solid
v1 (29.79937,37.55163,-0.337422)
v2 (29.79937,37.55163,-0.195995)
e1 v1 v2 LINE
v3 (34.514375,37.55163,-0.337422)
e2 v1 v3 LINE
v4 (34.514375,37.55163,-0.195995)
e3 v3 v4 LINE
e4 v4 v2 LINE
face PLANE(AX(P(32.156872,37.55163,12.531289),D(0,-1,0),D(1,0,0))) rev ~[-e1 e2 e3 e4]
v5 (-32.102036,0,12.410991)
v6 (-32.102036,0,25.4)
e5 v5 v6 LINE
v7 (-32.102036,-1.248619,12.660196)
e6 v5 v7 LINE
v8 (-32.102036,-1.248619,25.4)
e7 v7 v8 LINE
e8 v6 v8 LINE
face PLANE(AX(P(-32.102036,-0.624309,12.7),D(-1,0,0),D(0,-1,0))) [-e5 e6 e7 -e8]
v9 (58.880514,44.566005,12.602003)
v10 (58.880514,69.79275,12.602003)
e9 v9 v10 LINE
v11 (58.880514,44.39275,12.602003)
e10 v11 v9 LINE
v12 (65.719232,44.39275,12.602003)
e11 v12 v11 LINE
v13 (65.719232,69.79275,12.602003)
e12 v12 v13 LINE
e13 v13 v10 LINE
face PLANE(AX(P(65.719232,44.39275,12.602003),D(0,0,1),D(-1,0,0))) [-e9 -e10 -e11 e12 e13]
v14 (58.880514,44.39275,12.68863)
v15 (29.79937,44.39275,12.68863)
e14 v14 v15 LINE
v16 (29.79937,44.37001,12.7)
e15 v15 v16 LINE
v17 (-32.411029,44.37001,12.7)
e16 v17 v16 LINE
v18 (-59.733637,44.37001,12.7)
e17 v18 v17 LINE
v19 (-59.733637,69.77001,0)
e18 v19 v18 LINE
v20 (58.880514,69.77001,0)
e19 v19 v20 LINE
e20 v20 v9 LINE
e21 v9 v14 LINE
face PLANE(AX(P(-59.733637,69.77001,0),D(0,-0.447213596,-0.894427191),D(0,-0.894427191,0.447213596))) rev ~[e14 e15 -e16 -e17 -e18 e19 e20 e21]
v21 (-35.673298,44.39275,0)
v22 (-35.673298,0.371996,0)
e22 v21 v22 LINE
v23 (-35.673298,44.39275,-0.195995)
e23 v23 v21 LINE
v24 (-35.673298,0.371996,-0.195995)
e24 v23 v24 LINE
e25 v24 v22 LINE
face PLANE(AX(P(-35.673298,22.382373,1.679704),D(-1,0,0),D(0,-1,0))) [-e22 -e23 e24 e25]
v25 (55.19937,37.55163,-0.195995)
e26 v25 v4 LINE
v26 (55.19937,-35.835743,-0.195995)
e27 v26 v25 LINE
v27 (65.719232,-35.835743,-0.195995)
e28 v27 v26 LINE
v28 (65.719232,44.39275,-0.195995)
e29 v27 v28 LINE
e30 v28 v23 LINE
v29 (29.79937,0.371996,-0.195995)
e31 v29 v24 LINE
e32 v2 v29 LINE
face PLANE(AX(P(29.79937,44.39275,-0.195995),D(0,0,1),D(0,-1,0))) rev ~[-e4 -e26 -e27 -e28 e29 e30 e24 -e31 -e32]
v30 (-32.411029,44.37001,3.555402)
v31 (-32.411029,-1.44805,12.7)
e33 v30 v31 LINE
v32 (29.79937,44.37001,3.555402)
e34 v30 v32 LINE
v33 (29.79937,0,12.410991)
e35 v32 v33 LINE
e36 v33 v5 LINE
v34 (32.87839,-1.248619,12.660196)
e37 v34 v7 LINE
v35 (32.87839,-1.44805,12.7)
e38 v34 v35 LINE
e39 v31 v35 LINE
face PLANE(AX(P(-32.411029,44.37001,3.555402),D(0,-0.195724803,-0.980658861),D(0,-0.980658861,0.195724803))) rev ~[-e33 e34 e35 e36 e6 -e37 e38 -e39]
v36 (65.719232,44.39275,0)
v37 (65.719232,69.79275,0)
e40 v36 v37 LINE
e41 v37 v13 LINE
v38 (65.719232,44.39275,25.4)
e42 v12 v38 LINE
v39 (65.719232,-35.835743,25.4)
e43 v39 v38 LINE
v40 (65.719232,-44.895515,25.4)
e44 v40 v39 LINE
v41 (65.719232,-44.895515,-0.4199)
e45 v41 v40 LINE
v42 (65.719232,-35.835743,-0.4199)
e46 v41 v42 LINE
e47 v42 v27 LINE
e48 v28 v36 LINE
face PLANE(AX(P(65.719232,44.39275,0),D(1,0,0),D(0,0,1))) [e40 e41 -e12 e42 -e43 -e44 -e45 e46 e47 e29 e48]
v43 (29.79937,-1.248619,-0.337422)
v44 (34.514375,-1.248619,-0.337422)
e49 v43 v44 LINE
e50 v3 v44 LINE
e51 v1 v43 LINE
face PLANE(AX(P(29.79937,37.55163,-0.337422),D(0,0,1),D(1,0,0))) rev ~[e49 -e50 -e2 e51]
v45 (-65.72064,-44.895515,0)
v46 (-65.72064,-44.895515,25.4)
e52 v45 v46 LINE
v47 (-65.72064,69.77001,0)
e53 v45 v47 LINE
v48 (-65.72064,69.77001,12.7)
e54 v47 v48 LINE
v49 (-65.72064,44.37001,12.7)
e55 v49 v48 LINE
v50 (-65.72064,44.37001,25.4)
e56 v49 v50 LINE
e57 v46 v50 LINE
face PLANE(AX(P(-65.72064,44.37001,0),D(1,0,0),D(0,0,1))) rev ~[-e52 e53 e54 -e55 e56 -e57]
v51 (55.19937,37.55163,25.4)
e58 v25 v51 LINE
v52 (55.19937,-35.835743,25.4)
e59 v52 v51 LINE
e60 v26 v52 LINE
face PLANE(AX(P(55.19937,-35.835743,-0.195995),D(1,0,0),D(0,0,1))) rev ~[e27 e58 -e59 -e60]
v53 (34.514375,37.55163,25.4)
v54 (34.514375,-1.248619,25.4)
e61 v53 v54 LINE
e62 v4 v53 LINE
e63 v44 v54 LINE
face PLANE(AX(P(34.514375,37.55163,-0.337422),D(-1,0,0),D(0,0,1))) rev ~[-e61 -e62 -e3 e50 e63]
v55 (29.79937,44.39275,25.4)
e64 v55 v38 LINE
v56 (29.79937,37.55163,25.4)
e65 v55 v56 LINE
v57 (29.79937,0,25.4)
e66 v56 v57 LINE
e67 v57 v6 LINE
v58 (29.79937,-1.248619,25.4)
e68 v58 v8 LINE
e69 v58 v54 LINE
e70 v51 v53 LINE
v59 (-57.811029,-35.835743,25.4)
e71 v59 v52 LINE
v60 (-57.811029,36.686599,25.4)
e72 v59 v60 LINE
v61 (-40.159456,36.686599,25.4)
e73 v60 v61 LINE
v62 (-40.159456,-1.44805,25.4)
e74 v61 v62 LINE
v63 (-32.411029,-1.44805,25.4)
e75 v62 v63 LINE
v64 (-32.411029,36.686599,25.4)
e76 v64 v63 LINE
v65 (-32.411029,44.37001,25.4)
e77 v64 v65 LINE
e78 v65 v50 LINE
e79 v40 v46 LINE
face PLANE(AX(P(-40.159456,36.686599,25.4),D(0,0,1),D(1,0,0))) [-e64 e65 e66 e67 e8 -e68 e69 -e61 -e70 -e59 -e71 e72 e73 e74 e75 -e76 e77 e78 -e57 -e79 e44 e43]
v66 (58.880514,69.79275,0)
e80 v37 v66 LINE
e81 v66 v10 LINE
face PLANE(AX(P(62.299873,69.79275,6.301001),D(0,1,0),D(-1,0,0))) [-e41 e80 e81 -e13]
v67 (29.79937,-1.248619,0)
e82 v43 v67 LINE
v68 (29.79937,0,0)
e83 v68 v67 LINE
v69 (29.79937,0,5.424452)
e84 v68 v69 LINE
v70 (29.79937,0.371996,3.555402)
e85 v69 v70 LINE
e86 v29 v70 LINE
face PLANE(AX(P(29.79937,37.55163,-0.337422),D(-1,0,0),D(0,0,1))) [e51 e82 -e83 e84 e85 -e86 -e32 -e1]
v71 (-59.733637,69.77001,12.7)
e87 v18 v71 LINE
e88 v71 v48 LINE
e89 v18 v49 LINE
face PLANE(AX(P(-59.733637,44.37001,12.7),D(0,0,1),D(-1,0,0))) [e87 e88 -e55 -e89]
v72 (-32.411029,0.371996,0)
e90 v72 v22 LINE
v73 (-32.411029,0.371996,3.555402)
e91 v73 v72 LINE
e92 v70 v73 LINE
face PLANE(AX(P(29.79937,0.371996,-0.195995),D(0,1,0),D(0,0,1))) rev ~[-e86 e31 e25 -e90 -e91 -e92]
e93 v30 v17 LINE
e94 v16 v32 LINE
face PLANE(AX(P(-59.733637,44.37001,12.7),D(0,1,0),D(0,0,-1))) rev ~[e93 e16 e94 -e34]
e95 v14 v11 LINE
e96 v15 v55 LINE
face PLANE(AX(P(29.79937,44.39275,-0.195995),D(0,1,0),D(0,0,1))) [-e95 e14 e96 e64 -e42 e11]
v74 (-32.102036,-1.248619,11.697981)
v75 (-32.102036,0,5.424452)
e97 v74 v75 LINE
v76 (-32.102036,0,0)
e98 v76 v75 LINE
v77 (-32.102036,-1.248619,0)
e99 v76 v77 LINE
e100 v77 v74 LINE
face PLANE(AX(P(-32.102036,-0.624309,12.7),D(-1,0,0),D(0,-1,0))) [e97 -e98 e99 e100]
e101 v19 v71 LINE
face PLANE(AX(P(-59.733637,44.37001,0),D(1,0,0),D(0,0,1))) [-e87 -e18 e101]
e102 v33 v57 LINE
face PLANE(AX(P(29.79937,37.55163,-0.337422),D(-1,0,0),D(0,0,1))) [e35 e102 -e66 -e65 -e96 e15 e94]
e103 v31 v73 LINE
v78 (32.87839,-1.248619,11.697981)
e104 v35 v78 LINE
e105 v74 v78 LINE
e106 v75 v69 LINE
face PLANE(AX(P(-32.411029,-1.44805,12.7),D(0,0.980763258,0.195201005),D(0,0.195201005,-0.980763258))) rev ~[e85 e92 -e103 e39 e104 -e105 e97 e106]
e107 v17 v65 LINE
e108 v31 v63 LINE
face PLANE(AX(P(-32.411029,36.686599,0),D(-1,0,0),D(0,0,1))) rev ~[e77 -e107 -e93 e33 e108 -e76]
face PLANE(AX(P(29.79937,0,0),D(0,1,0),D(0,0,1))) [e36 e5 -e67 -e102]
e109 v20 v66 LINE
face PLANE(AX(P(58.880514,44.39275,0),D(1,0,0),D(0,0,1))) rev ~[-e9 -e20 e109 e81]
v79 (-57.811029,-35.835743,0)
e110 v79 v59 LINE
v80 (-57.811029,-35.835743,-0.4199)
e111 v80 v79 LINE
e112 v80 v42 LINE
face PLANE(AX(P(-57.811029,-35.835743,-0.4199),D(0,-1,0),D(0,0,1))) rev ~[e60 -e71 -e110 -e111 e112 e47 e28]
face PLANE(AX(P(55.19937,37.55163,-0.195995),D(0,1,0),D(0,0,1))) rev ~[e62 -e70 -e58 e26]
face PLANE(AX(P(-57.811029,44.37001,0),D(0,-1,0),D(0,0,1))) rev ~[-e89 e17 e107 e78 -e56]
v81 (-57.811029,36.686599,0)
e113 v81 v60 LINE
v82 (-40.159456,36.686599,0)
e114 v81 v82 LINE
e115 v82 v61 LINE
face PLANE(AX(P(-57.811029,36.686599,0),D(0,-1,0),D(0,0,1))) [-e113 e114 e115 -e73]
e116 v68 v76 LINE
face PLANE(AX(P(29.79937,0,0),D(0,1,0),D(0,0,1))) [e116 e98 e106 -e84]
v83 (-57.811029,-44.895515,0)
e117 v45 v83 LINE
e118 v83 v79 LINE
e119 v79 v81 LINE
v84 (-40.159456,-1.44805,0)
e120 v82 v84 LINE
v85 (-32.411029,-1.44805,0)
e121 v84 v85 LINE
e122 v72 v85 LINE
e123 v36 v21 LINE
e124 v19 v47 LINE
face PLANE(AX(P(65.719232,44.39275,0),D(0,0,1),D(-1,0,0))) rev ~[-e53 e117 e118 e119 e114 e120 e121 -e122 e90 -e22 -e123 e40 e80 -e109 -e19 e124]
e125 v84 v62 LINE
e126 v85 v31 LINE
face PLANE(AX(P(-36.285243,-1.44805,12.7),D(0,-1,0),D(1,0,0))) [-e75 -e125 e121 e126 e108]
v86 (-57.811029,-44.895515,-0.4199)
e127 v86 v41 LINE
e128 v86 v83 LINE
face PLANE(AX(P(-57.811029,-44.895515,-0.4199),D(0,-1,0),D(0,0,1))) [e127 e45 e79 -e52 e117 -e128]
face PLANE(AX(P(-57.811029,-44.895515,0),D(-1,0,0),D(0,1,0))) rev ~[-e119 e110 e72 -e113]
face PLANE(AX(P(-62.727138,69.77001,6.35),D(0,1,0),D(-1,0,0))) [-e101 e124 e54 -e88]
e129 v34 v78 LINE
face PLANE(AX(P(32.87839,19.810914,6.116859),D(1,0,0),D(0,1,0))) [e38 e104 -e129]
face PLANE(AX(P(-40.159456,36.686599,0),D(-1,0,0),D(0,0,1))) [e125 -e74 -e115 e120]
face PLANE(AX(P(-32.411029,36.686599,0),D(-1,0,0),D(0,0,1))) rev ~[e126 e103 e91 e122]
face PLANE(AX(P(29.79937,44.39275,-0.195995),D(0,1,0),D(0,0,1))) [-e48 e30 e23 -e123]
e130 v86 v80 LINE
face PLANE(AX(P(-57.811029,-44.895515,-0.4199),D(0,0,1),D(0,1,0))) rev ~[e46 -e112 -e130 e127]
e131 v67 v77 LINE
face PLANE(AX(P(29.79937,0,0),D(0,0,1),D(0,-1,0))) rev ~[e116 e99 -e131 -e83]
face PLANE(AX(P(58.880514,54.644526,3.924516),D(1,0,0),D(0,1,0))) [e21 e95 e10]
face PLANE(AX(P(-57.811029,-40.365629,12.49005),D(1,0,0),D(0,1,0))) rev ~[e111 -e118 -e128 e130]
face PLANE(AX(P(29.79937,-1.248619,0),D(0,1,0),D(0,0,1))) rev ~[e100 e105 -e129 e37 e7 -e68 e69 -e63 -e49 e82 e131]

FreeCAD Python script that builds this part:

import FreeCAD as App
import Part
import Sketcher
from FreeCAD import Vector
Q = App.Units.Quantity


def add_polygon(sketch, points):
    """Adds a closed chain of lines whose ends are joined by coincident constraints."""
    first, n = sketch.GeometryCount, len(points)
    for a, b in zip(points, points[1:] + points[:1]):
        sketch.addGeometry(Part.LineSegment(App.Vector(*a, 0), App.Vector(*b, 0)), False)
    for i in range(n):
        sketch.addConstraint(Sketcher.Constraint("Coincident", first + i, 2, first + (i + 1) % n, 1))

doc = App.newDocument("Part")
body = doc.addObject("PartDesign::Body", "Body")

# Sketch on XY plane
sketch1 = body.newObject("Sketcher::SketchObject", "Sketch")
sketch1.AttachmentSupport = (doc.getObject("XY_Plane"), [""])
sketch1.MapMode = "FlatFace"
add_polygon(sketch1, [(-66, 44), (-66, -45), (-58, -45), (-58, 44)])  # lines 0-3
sketch1.addConstraint([
    Sketcher.Constraint("Vertical", 0),
    Sketcher.Constraint("Horizontal", 1),
    Sketcher.Constraint("Vertical", 2),
    Sketcher.Constraint("Horizontal", 3),
    Sketcher.Constraint("DistanceX", 1, 1, 1, 2, Q("7.909611 mm")),
    Sketcher.Constraint("DistanceY", 0, 2, 0, 1, Q("89.265525 mm")),
    Sketcher.Constraint("DistanceX", 0, 2, -1, 1, Q("65.72064 mm")),
    Sketcher.Constraint("DistanceY", -1, 1, 2, 2, Q("44.37001 mm")),
])
pad1 = body.newObject("PartDesign::Pad", "Pad")
pad1.Profile = sketch1
pad1.Length = Q("1 in")

# Sketch on YZ plane
sketch2 = body.newObject("Sketcher::SketchObject", "Sketch001")
sketch2.AttachmentSupport = (doc.getObject("YZ_Plane"), [""])
sketch2.MapMode = "FlatFace"
sketch2.AttachmentOffset = App.Placement(Vector(0, 0, -57.811029), App.Rotation())
add_polygon(sketch2, [(-45, 25), (-45, 0), (-36, 0), (-36, 25)])  # lines 0-3
sketch2.addConstraint([
    Sketcher.Constraint("Vertical", 0),
    Sketcher.Constraint("Horizontal", 1),
    Sketcher.Constraint("Vertical", 2),
    Sketcher.Constraint("Horizontal", 3),
    Sketcher.Constraint("DistanceY", -1, 1, 2, 2, Q("1 in")),
    Sketcher.Constraint("DistanceY", 0, 2, 0, 1, Q("25.8199 mm")),
    Sketcher.Constraint("DistanceX", 1, 1, 1, 2, Q("9.059772 mm")),
    Sketcher.Constraint("DistanceX", 0, 2, -1, 1, Q("44.895515 mm")),
])
pad2 = body.newObject("PartDesign::Pad", "Pad001")
pad2.Profile = sketch2
pad2.Length = 123.530261

# Sketch on XZ plane
sketch3 = body.newObject("Sketcher::SketchObject", "Sketch002")
sketch3.AttachmentSupport = (doc.getObject("XZ_Plane"), [""])
sketch3.MapMode = "FlatFace"
sketch3.AttachmentOffset = App.Placement(Vector(0, 0, 35.835743), App.Rotation())
add_polygon(sketch3, [(66, 25), (66, 0), (55, 0), (55, 25)])  # lines 0-3
sketch3.addConstraint([
    Sketcher.Constraint("Vertical", 0),
    Sketcher.Constraint("Horizontal", 1),
    Sketcher.Constraint("Vertical", 2),
    Sketcher.Constraint("Horizontal", 3),
    Sketcher.Constraint("DistanceY", -1, 1, 2, 2, Q("1 in")),
    Sketcher.Constraint("DistanceX", 1, 2, 1, 1, Q("10.519862 mm")),
    Sketcher.Constraint("DistanceY", 0, 2, 0, 1, Q("25.595995 mm")),
    Sketcher.Constraint("DistanceX", -1, 1, 0, 2, Q("65.719232 mm")),
])
pad3 = body.newObject("PartDesign::Pad", "Pad002")
pad3.Profile = sketch3
pad3.Length = 80.228493
pad3.Reversed = True

# Sketch on YZ plane
sketch4 = body.newObject("Sketcher::SketchObject", "Sketch003")
sketch4.AttachmentSupport = (doc.getObject("YZ_Plane"), [""])
sketch4.MapMode = "FlatFace"
sketch4.AttachmentOffset = App.Placement(Vector(0, 0, 55.19937), App.Rotation())
add_polygon(sketch4, [(44, 25), (44, 0), (38, 0), (38, 25)])  # lines 0-3
sketch4.addConstraint([
    Sketcher.Constraint("Vertical", 0),
    Sketcher.Constraint("Horizontal", 1),
    Sketcher.Constraint("Vertical", 2),
    Sketcher.Constraint("Horizontal", 3),
    Sketcher.Constraint("DistanceY", -1, 1, 2, 2, Q("1 in")),
    Sketcher.Constraint("DistanceX", 1, 2, 1, 1, Q("6.841119 mm")),
    Sketcher.Constraint("DistanceY", 0, 2, 0, 1, Q("25.595995 mm")),
    Sketcher.Constraint("DistanceX", -1, 1, 0, 2, Q("44.39275 mm")),
])
pad4 = body.newObject("PartDesign::Pad", "Pad003")
pad4.Profile = sketch4
pad4.Length = Q("1 in")
pad4.Reversed = True

# Sketch on YZ plane
sketch5 = body.newObject("Sketcher::SketchObject", "Sketch004")
sketch5.AttachmentSupport = (doc.getObject("YZ_Plane"), [""])
sketch5.MapMode = "FlatFace"
sketch5.AttachmentOffset = App.Placement(Vector(0, 0, -57.811029), App.Rotation())
add_polygon(sketch5, [(37, 25), (37, 0), (44, 0), (44, 25)])  # lines 0-3
sketch5.addConstraint([
    Sketcher.Constraint("Vertical", 0),
    Sketcher.Constraint("Horizontal", 1),
    Sketcher.Constraint("Vertical", 2),
    Sketcher.Constraint("Horizontal", 3),
    Sketcher.Constraint("PointOnObject", 0, 2, -1),
    Sketcher.Constraint("DistanceY", 0, 2, 0, 1, Q("1 in")),
    Sketcher.Constraint("DistanceX", 1, 1, 1, 2, Q("7.683411 mm")),
    Sketcher.Constraint("DistanceX", -1, 1, 0, 2, Q("36.686599 mm")),
])
pad5 = body.newObject("PartDesign::Pad", "Pad004")
pad5.Profile = sketch5
pad5.Length = Q("1 in")

# Sketch on XZ plane
sketch6 = body.newObject("Sketcher::SketchObject", "Sketch005")
sketch6.AttachmentSupport = (doc.getObject("XZ_Plane"), [""])
sketch6.MapMode = "FlatFace"
sketch6.AttachmentOffset = App.Placement(Vector(0, 0, -37.55163), App.Rotation())
add_polygon(sketch6, [(29.8, 25.4), (29.8, -0.3), (34.5, -0.3), (34.5, 25.4)])  # lines 0-3
sketch6.addConstraint([
    Sketcher.Constraint("Vertical", 0),
    Sketcher.Constraint("Horizontal", 1),
    Sketcher.Constraint("Vertical", 2),
    Sketcher.Constraint("Horizontal", 3),
    Sketcher.Constraint("DistanceY", -1, 1, 2, 2, Q("1 in")),
    Sketcher.Constraint("DistanceY", 0, 2, 0, 1, Q("25.737422 mm")),
    Sketcher.Constraint("DistanceX", 1, 1, 1, 2, Q("4.715005 mm")),
    Sketcher.Constraint("DistanceX", -1, 1, 0, 2, Q("29.79937 mm")),
])
pad6 = body.newObject("PartDesign::Pad", "Pad005")
pad6.Profile = sketch6
pad6.Length = 38.800249

# Sketch on YZ plane
sketch7 = body.newObject("Sketcher::SketchObject", "Sketch006")
sketch7.AttachmentSupport = (doc.getObject("YZ_Plane"), [""])
sketch7.MapMode = "FlatFace"
sketch7.AttachmentOffset = App.Placement(Vector(0, 0, 29.79937), App.Rotation())
add_polygon(sketch7, [(0, 25.4), (0, 0), (-1.2, 0), (-1.2, 25.4)])  # lines 0-3
sketch7.addConstraint([
    Sketcher.Constraint("Vertical", 0),
    Sketcher.Constraint("Horizontal", 1),
    Sketcher.Constraint("Vertical", 2),
    Sketcher.Constraint("Horizontal", 3),
    Sketcher.Constraint("Coincident", 0, 2, -1, 1),
    Sketcher.Constraint("DistanceY", 0, 2, 0, 1, Q("1 in")),
    Sketcher.Constraint("DistanceX", 1, 2, 1, 1, Q("1.248619 mm")),
])
pad7 = body.newObject("PartDesign::Pad", "Pad006")
pad7.Profile = sketch7
pad7.Length = 61.901405
pad7.Reversed = True

# Sketch on XZ plane
sketch8 = body.newObject("Sketcher::SketchObject", "Sketch007")
sketch8.AttachmentSupport = (doc.getObject("XZ_Plane"), [""])
sketch8.MapMode = "FlatFace"
sketch8.AttachmentOffset = App.Placement(Vector(0, 0, -36.686599), App.Rotation())
add_polygon(sketch8, [(-40, 25), (-40, 0), (-32, 0), (-32, 25)])  # lines 0-3
sketch8.addConstraint([
    Sketcher.Constraint("Vertical", 0),
    Sketcher.Constraint("Horizontal", 1),
    Sketcher.Constraint("Vertical", 2),
    Sketcher.Constraint("Horizontal", 3),
    Sketcher.Constraint("PointOnObject", 0, 2, -1),
    Sketcher.Constraint("DistanceY", 0, 2, 0, 1, Q("1 in")),
    Sketcher.Constraint("DistanceX", 1, 1, 1, 2, Q("7.748427 mm")),
    Sketcher.Constraint("DistanceX", 1, 2, -1, 1, Q("32.411029 mm")),
])
pad8 = body.newObject("PartDesign::Pad", "Pad007")
pad8.Profile = sketch8
pad8.Length = 38.134649

# Sketch on YZ plane
sketch9 = body.newObject("Sketcher::SketchObject", "Sketch008")
sketch9.AttachmentSupport = (doc.getObject("YZ_Plane"), [""])
sketch9.MapMode = "FlatFace"
sketch9.AttachmentOffset = App.Placement(Vector(0, 0, 29.79937), App.Rotation())
add_polygon(sketch9, [(44.4, 3.6), (44.4, -0.2), (0.4, -0.2), (0.4, 3.6)])  # lines 0-3
sketch9.addConstraint([
    Sketcher.Constraint("Vertical", 0),
    Sketcher.Constraint("Horizontal", 1),
    Sketcher.Constraint("Vertical", 2),
    Sketcher.Constraint("Horizontal", 3),
    Sketcher.Constraint("DistanceX", 1, 2, 1, 1, Q("44.020753 mm")),
    Sketcher.Constraint("DistanceY", 0, 2, 0, 1, Q("3.751397 mm")),
    Sketcher.Constraint("DistanceX", -1, 1, 0, 2, Q("44.39275 mm")),
    Sketcher.Constraint("DistanceY", 0, 2, -1, 1, Q("0.195995 mm")),
])
pad9 = body.newObject("PartDesign::Pad", "Pad008")
pad9.Profile = sketch9
pad9.Length = 65.472668
pad9.Reversed = True

# Sketch on YZ plane
sketch10 = body.newObject("Sketcher::SketchObject", "Sketch009")
sketch10.AttachmentSupport = (doc.getObject("YZ_Plane"), [""])
sketch10.MapMode = "FlatFace"
sketch10.AttachmentOffset = App.Placement(Vector(0, 0, -32.411029), App.Rotation())
add_polygon(sketch10, [(44, 4), (-1, 13), (0, 4)])  # lines 0-2
sketch10.addConstraint([
    Sketcher.Constraint("Horizontal", 2),
    Sketcher.Constraint("DistanceY", -1, 1, 0, 2, Q("0.5 in")),
    Sketcher.Constraint("Distance", 0, Q("46.721712 mm")),
    Sketcher.Constraint("Distance", 1, Q("9.32396 mm")),
    Sketcher.Constraint("DistanceX", 2, 1, 2, 2, Q("43.998014 mm")),
    Sketcher.Constraint("DistanceX", 0, 2, -1, 1, Q("1.44805 mm")),
])
pad10 = body.newObject("PartDesign::Pad", "Pad009")
pad10.Profile = sketch10
pad10.Length = 65.289419

# Sketch on XZ plane
sketch11 = body.newObject("Sketcher::SketchObject", "Sketch010")
sketch11.AttachmentSupport = (doc.getObject("XZ_Plane"), [""])
sketch11.MapMode = "FlatFace"
sketch11.AttachmentOffset = App.Placement(Vector(0, 0, -44.37001), App.Rotation())
add_polygon(sketch11, [(-60, 13), (-60, 0), (-66, 0), (-66, 13)])  # lines 0-3
sketch11.addConstraint([
    Sketcher.Constraint("Vertical", 0),
    Sketcher.Constraint("Horizontal", 1),
    Sketcher.Constraint("Vertical", 2),
    Sketcher.Constraint("Horizontal", 3),
    Sketcher.Constraint("PointOnObject", 0, 2, -1),
    Sketcher.Constraint("DistanceY", 0, 2, 0, 1, Q("0.5 in")),
    Sketcher.Constraint("DistanceX", 1, 2, 1, 1, Q("5.987003 mm")),
    Sketcher.Constraint("DistanceX", 1, 2, -1, 1, Q("65.72064 mm")),
])
pad11 = body.newObject("PartDesign::Pad", "Pad010")
pad11.Profile = sketch11
pad11.Length = Q("1 in")
pad11.Reversed = True

# Sketch on YZ plane
sketch12 = body.newObject("Sketcher::SketchObject", "Sketch011")
sketch12.AttachmentSupport = (doc.getObject("YZ_Plane"), [""])
sketch12.MapMode = "FlatFace"
sketch12.AttachmentOffset = App.Placement(Vector(0, 0, -59.733637), App.Rotation())
add_polygon(sketch12, [(70, 0), (44, 13), (44, 0)])  # lines 0-2
sketch12.addConstraint([
    Sketcher.Constraint("Vertical", 1),
    Sketcher.Constraint("Horizontal", 2),
    Sketcher.Constraint("PointOnObject", 1, 2, -1),
    Sketcher.Constraint("DistanceX", 2, 1, 2, 2, Q("1 in")),
    Sketcher.Constraint("DistanceY", 1, 2, 1, 1, Q("0.5 in")),
    Sketcher.Constraint("DistanceX", -1, 1, 0, 2, Q("44.37001 mm")),
])
pad12 = body.newObject("PartDesign::Pad", "Pad011")
pad12.Profile = sketch12
pad12.Length = 118.61415

# Sketch on XZ plane
sketch13 = body.newObject("Sketcher::SketchObject", "Sketch012")
sketch13.AttachmentSupport = (doc.getObject("XZ_Plane"), [""])
sketch13.MapMode = "FlatFace"
sketch13.AttachmentOffset = App.Placement(Vector(0, 0, -44.39275), App.Rotation())
add_polygon(sketch13, [(66, 13), (66, 0), (59, 0), (59, 13)])  # lines 0-3
sketch13.addConstraint([
    Sketcher.Constraint("Vertical", 0),
    Sketcher.Constraint("Horizontal", 1),
    Sketcher.Constraint("Vertical", 2),
    Sketcher.Constraint("Horizontal", 3),
    Sketcher.Constraint("PointOnObject", 0, 2, -1),
    Sketcher.Constraint("DistanceX", 1, 2, 1, 1, Q("6.838718 mm")),
    Sketcher.Constraint("DistanceY", 0, 2, 0, 1, Q("12.602003 mm")),
    Sketcher.Constraint("DistanceX", -1, 1, 0, 2, Q("65.719232 mm")),
])
pad13 = body.newObject("PartDesign::Pad", "Pad012")
pad13.Profile = sketch13
pad13.Length = Q("1 in")
pad13.Reversed = True

doc.recompute()
